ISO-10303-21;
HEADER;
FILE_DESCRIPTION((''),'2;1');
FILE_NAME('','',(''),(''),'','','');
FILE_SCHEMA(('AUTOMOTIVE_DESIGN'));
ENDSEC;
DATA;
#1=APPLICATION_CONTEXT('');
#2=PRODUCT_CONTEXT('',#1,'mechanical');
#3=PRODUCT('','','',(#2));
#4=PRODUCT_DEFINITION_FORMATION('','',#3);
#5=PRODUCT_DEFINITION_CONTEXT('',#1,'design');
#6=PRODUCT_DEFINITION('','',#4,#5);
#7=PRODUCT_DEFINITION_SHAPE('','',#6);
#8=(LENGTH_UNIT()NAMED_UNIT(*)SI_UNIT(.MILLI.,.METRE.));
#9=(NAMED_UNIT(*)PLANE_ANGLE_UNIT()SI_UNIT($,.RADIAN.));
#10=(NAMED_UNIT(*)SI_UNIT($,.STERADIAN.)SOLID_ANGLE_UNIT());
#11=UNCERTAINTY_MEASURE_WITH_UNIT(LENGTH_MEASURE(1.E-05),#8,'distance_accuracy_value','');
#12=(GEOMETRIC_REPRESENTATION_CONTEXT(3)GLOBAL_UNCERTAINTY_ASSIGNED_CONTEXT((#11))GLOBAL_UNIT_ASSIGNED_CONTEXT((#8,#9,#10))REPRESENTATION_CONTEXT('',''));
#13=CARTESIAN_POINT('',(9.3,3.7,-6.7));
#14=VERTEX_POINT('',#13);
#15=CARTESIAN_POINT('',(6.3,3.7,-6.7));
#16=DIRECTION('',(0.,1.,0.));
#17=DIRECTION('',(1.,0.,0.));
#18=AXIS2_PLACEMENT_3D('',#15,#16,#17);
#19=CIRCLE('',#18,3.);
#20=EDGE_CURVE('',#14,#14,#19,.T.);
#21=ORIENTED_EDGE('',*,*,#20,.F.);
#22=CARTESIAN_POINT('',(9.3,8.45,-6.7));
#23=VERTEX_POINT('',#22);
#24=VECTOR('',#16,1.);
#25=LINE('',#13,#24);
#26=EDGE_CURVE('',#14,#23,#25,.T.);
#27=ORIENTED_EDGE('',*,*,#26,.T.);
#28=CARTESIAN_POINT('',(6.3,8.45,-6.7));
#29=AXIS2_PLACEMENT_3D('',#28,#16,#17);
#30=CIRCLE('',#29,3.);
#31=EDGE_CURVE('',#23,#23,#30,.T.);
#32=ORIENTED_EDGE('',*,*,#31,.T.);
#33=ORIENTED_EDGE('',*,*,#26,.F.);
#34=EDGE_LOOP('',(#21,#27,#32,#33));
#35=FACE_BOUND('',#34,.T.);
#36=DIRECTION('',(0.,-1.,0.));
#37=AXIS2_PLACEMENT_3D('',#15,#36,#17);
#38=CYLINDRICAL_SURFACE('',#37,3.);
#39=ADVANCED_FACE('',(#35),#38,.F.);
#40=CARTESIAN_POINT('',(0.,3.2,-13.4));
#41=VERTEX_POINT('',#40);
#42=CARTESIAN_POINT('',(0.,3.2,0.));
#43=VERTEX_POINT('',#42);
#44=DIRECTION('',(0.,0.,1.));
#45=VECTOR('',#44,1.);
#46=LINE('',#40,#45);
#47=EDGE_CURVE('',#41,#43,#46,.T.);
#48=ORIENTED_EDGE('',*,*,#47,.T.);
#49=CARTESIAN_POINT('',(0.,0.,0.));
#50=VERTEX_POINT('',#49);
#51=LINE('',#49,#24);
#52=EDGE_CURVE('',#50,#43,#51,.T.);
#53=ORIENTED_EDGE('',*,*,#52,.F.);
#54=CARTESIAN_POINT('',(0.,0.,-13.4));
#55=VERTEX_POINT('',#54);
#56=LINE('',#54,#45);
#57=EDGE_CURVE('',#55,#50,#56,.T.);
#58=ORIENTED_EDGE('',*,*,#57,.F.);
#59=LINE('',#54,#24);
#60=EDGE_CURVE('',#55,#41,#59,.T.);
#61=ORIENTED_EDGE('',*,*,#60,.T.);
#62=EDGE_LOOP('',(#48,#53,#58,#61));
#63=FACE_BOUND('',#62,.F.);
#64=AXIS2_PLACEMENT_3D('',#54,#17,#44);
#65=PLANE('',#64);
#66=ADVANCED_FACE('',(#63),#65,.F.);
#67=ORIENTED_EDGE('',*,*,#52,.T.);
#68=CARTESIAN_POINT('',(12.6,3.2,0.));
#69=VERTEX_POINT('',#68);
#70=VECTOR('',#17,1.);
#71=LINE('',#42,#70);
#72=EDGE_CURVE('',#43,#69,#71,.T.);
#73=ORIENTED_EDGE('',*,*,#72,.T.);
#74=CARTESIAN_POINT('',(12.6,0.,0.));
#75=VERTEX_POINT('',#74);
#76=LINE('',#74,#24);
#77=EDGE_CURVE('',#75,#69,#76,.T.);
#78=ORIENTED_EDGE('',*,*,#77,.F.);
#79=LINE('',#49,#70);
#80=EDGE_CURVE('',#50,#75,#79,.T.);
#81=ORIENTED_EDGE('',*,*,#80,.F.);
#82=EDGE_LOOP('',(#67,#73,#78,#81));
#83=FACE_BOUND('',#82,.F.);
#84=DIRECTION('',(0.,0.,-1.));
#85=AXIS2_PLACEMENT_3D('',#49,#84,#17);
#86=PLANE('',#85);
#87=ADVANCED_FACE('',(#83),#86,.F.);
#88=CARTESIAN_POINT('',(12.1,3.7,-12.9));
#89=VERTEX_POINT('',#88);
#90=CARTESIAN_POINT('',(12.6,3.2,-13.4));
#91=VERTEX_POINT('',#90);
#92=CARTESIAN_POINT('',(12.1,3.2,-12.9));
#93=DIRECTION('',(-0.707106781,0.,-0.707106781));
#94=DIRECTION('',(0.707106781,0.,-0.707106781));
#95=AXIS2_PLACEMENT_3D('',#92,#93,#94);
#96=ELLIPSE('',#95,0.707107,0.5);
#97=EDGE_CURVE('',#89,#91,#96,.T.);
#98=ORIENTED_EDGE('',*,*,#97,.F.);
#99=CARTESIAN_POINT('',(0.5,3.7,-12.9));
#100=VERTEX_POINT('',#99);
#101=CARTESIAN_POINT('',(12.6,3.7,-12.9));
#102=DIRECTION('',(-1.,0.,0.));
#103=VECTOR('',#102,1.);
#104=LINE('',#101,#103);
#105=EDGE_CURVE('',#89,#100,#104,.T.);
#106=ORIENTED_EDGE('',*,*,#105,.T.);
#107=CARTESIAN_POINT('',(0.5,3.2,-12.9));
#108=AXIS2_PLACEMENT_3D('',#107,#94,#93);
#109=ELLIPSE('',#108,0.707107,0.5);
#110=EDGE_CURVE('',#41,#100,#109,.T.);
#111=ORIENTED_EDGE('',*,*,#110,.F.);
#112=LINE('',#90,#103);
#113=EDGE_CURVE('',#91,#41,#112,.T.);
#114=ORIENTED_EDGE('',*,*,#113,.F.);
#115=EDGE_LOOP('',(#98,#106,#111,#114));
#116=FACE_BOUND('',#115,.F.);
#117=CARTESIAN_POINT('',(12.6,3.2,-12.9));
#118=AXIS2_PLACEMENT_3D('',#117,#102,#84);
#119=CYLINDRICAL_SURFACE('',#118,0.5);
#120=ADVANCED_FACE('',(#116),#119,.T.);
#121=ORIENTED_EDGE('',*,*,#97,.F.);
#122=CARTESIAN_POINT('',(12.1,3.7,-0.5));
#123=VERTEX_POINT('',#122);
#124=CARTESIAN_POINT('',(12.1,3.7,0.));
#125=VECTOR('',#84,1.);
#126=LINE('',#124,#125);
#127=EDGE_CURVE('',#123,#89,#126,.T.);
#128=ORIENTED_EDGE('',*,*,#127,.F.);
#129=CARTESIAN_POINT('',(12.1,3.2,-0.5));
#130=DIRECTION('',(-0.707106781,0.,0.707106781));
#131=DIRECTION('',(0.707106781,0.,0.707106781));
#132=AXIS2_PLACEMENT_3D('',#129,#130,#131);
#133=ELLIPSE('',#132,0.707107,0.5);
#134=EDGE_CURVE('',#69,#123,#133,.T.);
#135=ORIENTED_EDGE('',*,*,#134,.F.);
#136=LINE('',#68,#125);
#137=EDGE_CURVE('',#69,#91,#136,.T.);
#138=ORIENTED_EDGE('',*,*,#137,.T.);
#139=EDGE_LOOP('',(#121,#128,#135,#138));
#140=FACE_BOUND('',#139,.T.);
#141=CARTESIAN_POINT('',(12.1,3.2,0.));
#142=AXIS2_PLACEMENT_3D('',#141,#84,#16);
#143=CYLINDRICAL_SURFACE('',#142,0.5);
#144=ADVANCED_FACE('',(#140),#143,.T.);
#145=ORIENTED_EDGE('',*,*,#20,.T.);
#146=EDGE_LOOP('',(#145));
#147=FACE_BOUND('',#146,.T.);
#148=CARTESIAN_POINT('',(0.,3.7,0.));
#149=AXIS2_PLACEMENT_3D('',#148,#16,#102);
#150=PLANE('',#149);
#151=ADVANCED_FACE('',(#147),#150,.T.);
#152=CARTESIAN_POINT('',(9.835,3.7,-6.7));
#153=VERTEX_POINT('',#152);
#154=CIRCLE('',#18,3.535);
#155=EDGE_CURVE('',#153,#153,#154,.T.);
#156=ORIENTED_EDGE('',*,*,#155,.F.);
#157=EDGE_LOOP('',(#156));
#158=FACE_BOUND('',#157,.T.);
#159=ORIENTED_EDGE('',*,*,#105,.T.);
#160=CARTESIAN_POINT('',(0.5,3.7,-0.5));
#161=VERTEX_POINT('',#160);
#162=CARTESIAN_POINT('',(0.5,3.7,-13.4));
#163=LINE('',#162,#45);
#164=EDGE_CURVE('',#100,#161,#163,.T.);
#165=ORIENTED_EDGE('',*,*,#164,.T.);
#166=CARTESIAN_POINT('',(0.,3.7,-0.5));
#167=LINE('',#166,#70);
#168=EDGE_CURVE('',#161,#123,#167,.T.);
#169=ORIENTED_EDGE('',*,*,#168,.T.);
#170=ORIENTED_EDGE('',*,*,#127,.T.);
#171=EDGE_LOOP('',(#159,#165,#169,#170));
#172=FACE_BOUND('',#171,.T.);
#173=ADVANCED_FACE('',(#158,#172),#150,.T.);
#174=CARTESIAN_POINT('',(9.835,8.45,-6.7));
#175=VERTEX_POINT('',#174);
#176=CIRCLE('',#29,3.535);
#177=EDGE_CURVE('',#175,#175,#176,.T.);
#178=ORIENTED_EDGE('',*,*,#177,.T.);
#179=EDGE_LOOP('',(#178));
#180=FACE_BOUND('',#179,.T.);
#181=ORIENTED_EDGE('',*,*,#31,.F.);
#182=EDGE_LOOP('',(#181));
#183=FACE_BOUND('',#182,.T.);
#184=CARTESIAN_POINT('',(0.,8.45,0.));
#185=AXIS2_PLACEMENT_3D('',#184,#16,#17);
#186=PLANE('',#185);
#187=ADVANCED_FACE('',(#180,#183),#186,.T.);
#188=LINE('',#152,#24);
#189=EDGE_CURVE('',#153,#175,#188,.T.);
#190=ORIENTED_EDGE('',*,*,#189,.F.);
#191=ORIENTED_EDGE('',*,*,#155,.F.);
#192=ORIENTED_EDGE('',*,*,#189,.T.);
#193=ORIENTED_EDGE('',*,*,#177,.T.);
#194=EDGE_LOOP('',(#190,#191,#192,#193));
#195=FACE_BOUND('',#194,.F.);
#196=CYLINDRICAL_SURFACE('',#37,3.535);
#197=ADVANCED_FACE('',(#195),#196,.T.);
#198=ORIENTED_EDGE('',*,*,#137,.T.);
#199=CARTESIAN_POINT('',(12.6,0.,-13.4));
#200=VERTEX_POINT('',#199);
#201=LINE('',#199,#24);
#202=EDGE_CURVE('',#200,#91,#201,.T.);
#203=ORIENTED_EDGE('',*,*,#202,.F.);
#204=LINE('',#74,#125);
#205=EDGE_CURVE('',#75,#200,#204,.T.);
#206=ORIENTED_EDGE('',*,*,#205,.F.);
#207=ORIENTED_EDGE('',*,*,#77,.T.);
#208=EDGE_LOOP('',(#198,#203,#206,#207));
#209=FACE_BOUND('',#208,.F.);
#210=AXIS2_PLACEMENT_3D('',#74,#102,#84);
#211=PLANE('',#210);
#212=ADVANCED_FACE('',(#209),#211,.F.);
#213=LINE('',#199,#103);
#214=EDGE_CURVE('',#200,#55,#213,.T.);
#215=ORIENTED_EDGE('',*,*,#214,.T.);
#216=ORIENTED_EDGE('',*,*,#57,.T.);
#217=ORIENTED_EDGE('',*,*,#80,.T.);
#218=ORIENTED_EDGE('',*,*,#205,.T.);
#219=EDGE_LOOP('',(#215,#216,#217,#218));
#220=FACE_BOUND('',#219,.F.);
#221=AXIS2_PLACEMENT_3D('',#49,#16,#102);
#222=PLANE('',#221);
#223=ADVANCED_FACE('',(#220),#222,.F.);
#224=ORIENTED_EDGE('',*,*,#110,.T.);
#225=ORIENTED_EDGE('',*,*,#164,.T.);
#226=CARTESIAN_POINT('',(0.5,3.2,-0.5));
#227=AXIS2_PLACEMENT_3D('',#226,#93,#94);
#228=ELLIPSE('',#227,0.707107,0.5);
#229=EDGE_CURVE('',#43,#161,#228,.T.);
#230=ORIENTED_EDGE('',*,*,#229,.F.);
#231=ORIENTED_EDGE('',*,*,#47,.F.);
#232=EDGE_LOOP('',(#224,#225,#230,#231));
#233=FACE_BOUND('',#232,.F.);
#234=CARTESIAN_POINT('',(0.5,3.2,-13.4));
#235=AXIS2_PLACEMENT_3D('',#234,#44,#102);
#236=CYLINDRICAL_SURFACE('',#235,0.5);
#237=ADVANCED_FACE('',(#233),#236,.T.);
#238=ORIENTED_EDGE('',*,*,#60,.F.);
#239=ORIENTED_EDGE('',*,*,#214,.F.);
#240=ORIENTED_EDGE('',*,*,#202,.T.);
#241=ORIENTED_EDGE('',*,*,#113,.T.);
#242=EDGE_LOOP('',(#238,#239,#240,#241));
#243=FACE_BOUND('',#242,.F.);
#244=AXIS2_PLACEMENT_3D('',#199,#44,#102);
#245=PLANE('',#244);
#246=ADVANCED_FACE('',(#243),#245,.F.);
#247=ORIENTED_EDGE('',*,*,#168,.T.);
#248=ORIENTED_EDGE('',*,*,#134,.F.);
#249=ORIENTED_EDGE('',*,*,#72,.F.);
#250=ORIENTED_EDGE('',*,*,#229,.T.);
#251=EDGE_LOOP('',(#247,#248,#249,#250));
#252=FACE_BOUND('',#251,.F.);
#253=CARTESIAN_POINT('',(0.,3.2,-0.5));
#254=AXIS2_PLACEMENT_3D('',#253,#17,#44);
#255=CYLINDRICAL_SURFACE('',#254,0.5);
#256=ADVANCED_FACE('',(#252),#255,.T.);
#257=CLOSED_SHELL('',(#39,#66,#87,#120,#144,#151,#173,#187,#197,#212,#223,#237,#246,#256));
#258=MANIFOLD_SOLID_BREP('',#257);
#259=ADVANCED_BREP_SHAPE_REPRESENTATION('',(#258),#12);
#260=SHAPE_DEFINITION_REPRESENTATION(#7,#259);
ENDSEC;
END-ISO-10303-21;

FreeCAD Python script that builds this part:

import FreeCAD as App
import Part
import Sketcher
from FreeCAD import Vector


def edges_at(feature, points):
    """Names of the edges that pass closest to the given points."""
    edges = feature.Shape.Edges
    near = lambda p: min(range(len(edges)), key=lambda i: edges[i].distToShape(Part.Vertex(*p))[0])
    return sorted({f"Edge{near(p) + 1}" for p in points})

doc = App.newDocument("Part")
params = doc.addObject("Spreadsheet::Sheet", "Params")
for row, (alias, value) in enumerate([
    ("sketch1_width", "12.6 mm"),
    ("sketch1_height", "13.4 mm"),
    ("pad1_length", "3.7 mm"),
    ("sketch2_diameter", "6 mm"),
    ("sketch2_diameter2", "7.07 mm"),
    ("pad2_length", "4.75 mm"),
    ("fillet_radius", "0.5 mm"),
], start=1):
    params.set(f"A{row}", alias)
    params.set(f"B{row}", "=" + value)
    params.setAlias(f"B{row}", alias)

body = doc.addObject("PartDesign::Body", "Body")

sketch1 = body.newObject("Sketcher::SketchObject", "Sketch")
sketch1.AttachmentSupport = (doc.getObject("XZ_Plane"), [""])
sketch1.MapMode = "FlatFace"
sketch1.addGeometry(Part.LineSegment(Vector(0, -13, 0), Vector(0, 0, 0)), False)
sketch1.addGeometry(Part.LineSegment(Vector(0, 0, 0), Vector(13, 0, 0)), False)
sketch1.addGeometry(Part.LineSegment(Vector(13, 0, 0), Vector(13, -13, 0)), False)
sketch1.addGeometry(Part.LineSegment(Vector(13, -13, 0), Vector(0, -13, 0)), False)
sketch1.addConstraint(Sketcher.Constraint("Coincident", 0, 2, 1, 1))
sketch1.addConstraint(Sketcher.Constraint("Coincident", 1, 2, 2, 1))
sketch1.addConstraint(Sketcher.Constraint("Coincident", 2, 2, 3, 1))
sketch1.addConstraint(Sketcher.Constraint("Coincident", 3, 2, 0, 1))
sketch1.addConstraint(Sketcher.Constraint("Vertical", 0))
sketch1.addConstraint(Sketcher.Constraint("Horizontal", 1))
sketch1.addConstraint(Sketcher.Constraint("Vertical", 2))
sketch1.addConstraint(Sketcher.Constraint("Horizontal", 3))
sketch1.addConstraint(Sketcher.Constraint("Coincident", 0, 2, -1, 1))
sketch1.addConstraint(Sketcher.Constraint("DistanceX", 1, 1, 1, 2, 12.6))
sketch1.addConstraint(Sketcher.Constraint("DistanceY", 0, 1, 0, 2, 13.4))
sketch1.setExpression("Constraints[9]", "Params.sketch1_width")
sketch1.setExpression("Constraints[10]", "Params.sketch1_height")
pad1 = body.newObject("PartDesign::Pad", "Pad")
pad1.Profile = sketch1
pad1.setExpression("Length", "Params.pad1_length")
pad1.Reversed = True

sketch2 = body.newObject("Sketcher::SketchObject", "Sketch001")
sketch2.AttachmentSupport = (doc.getObject("XZ_Plane"), [""])
sketch2.MapMode = "FlatFace"
sketch2.AttachmentOffset = App.Placement(Vector(0, 0, -3.7), App.Rotation())
sketch2.addGeometry(Part.Circle(Vector(6.3, -6.7, 0), Vector(0, 0, 1), 3.5), False)
sketch2.addGeometry(Part.Circle(Vector(6.3, -6.7, 0), Vector(0, 0, 1), 3), False)
sketch2.addConstraint(Sketcher.Constraint("Coincident", 1, 3, 0, 3))
sketch2.addConstraint(Sketcher.Constraint("Diameter", 1, 6.0))
sketch2.addConstraint(Sketcher.Constraint("Diameter", 0, 7.07))
sketch2.addConstraint(Sketcher.Constraint("DistanceX", -1, 1, 0, 3, 6.3))
sketch2.addConstraint(Sketcher.Constraint("DistanceY", 0, 3, -1, 1, 6.7))
sketch2.setExpression("Constraints[1]", "Params.sketch2_diameter")
sketch2.setExpression("Constraints[2]", "Params.sketch2_diameter2")
pad2 = body.newObject("PartDesign::Pad", "Pad001")
pad2.Profile = sketch2
pad2.setExpression("Length", "Params.pad2_length")
pad2.Reversed = True
doc.recompute()

fillet = body.newObject("PartDesign::Fillet", "Fillet")
fillet.Base = (pad2, edges_at(pad2, [
    (6.3, 3.7, 0),
    (12.6, 3.7, -6.7),
    (6.3, 3.7, -13.4),
    (0, 3.7, -6.7),
]))
fillet.setExpression("Radius", "Params.fillet_radius")

doc.recompute()
